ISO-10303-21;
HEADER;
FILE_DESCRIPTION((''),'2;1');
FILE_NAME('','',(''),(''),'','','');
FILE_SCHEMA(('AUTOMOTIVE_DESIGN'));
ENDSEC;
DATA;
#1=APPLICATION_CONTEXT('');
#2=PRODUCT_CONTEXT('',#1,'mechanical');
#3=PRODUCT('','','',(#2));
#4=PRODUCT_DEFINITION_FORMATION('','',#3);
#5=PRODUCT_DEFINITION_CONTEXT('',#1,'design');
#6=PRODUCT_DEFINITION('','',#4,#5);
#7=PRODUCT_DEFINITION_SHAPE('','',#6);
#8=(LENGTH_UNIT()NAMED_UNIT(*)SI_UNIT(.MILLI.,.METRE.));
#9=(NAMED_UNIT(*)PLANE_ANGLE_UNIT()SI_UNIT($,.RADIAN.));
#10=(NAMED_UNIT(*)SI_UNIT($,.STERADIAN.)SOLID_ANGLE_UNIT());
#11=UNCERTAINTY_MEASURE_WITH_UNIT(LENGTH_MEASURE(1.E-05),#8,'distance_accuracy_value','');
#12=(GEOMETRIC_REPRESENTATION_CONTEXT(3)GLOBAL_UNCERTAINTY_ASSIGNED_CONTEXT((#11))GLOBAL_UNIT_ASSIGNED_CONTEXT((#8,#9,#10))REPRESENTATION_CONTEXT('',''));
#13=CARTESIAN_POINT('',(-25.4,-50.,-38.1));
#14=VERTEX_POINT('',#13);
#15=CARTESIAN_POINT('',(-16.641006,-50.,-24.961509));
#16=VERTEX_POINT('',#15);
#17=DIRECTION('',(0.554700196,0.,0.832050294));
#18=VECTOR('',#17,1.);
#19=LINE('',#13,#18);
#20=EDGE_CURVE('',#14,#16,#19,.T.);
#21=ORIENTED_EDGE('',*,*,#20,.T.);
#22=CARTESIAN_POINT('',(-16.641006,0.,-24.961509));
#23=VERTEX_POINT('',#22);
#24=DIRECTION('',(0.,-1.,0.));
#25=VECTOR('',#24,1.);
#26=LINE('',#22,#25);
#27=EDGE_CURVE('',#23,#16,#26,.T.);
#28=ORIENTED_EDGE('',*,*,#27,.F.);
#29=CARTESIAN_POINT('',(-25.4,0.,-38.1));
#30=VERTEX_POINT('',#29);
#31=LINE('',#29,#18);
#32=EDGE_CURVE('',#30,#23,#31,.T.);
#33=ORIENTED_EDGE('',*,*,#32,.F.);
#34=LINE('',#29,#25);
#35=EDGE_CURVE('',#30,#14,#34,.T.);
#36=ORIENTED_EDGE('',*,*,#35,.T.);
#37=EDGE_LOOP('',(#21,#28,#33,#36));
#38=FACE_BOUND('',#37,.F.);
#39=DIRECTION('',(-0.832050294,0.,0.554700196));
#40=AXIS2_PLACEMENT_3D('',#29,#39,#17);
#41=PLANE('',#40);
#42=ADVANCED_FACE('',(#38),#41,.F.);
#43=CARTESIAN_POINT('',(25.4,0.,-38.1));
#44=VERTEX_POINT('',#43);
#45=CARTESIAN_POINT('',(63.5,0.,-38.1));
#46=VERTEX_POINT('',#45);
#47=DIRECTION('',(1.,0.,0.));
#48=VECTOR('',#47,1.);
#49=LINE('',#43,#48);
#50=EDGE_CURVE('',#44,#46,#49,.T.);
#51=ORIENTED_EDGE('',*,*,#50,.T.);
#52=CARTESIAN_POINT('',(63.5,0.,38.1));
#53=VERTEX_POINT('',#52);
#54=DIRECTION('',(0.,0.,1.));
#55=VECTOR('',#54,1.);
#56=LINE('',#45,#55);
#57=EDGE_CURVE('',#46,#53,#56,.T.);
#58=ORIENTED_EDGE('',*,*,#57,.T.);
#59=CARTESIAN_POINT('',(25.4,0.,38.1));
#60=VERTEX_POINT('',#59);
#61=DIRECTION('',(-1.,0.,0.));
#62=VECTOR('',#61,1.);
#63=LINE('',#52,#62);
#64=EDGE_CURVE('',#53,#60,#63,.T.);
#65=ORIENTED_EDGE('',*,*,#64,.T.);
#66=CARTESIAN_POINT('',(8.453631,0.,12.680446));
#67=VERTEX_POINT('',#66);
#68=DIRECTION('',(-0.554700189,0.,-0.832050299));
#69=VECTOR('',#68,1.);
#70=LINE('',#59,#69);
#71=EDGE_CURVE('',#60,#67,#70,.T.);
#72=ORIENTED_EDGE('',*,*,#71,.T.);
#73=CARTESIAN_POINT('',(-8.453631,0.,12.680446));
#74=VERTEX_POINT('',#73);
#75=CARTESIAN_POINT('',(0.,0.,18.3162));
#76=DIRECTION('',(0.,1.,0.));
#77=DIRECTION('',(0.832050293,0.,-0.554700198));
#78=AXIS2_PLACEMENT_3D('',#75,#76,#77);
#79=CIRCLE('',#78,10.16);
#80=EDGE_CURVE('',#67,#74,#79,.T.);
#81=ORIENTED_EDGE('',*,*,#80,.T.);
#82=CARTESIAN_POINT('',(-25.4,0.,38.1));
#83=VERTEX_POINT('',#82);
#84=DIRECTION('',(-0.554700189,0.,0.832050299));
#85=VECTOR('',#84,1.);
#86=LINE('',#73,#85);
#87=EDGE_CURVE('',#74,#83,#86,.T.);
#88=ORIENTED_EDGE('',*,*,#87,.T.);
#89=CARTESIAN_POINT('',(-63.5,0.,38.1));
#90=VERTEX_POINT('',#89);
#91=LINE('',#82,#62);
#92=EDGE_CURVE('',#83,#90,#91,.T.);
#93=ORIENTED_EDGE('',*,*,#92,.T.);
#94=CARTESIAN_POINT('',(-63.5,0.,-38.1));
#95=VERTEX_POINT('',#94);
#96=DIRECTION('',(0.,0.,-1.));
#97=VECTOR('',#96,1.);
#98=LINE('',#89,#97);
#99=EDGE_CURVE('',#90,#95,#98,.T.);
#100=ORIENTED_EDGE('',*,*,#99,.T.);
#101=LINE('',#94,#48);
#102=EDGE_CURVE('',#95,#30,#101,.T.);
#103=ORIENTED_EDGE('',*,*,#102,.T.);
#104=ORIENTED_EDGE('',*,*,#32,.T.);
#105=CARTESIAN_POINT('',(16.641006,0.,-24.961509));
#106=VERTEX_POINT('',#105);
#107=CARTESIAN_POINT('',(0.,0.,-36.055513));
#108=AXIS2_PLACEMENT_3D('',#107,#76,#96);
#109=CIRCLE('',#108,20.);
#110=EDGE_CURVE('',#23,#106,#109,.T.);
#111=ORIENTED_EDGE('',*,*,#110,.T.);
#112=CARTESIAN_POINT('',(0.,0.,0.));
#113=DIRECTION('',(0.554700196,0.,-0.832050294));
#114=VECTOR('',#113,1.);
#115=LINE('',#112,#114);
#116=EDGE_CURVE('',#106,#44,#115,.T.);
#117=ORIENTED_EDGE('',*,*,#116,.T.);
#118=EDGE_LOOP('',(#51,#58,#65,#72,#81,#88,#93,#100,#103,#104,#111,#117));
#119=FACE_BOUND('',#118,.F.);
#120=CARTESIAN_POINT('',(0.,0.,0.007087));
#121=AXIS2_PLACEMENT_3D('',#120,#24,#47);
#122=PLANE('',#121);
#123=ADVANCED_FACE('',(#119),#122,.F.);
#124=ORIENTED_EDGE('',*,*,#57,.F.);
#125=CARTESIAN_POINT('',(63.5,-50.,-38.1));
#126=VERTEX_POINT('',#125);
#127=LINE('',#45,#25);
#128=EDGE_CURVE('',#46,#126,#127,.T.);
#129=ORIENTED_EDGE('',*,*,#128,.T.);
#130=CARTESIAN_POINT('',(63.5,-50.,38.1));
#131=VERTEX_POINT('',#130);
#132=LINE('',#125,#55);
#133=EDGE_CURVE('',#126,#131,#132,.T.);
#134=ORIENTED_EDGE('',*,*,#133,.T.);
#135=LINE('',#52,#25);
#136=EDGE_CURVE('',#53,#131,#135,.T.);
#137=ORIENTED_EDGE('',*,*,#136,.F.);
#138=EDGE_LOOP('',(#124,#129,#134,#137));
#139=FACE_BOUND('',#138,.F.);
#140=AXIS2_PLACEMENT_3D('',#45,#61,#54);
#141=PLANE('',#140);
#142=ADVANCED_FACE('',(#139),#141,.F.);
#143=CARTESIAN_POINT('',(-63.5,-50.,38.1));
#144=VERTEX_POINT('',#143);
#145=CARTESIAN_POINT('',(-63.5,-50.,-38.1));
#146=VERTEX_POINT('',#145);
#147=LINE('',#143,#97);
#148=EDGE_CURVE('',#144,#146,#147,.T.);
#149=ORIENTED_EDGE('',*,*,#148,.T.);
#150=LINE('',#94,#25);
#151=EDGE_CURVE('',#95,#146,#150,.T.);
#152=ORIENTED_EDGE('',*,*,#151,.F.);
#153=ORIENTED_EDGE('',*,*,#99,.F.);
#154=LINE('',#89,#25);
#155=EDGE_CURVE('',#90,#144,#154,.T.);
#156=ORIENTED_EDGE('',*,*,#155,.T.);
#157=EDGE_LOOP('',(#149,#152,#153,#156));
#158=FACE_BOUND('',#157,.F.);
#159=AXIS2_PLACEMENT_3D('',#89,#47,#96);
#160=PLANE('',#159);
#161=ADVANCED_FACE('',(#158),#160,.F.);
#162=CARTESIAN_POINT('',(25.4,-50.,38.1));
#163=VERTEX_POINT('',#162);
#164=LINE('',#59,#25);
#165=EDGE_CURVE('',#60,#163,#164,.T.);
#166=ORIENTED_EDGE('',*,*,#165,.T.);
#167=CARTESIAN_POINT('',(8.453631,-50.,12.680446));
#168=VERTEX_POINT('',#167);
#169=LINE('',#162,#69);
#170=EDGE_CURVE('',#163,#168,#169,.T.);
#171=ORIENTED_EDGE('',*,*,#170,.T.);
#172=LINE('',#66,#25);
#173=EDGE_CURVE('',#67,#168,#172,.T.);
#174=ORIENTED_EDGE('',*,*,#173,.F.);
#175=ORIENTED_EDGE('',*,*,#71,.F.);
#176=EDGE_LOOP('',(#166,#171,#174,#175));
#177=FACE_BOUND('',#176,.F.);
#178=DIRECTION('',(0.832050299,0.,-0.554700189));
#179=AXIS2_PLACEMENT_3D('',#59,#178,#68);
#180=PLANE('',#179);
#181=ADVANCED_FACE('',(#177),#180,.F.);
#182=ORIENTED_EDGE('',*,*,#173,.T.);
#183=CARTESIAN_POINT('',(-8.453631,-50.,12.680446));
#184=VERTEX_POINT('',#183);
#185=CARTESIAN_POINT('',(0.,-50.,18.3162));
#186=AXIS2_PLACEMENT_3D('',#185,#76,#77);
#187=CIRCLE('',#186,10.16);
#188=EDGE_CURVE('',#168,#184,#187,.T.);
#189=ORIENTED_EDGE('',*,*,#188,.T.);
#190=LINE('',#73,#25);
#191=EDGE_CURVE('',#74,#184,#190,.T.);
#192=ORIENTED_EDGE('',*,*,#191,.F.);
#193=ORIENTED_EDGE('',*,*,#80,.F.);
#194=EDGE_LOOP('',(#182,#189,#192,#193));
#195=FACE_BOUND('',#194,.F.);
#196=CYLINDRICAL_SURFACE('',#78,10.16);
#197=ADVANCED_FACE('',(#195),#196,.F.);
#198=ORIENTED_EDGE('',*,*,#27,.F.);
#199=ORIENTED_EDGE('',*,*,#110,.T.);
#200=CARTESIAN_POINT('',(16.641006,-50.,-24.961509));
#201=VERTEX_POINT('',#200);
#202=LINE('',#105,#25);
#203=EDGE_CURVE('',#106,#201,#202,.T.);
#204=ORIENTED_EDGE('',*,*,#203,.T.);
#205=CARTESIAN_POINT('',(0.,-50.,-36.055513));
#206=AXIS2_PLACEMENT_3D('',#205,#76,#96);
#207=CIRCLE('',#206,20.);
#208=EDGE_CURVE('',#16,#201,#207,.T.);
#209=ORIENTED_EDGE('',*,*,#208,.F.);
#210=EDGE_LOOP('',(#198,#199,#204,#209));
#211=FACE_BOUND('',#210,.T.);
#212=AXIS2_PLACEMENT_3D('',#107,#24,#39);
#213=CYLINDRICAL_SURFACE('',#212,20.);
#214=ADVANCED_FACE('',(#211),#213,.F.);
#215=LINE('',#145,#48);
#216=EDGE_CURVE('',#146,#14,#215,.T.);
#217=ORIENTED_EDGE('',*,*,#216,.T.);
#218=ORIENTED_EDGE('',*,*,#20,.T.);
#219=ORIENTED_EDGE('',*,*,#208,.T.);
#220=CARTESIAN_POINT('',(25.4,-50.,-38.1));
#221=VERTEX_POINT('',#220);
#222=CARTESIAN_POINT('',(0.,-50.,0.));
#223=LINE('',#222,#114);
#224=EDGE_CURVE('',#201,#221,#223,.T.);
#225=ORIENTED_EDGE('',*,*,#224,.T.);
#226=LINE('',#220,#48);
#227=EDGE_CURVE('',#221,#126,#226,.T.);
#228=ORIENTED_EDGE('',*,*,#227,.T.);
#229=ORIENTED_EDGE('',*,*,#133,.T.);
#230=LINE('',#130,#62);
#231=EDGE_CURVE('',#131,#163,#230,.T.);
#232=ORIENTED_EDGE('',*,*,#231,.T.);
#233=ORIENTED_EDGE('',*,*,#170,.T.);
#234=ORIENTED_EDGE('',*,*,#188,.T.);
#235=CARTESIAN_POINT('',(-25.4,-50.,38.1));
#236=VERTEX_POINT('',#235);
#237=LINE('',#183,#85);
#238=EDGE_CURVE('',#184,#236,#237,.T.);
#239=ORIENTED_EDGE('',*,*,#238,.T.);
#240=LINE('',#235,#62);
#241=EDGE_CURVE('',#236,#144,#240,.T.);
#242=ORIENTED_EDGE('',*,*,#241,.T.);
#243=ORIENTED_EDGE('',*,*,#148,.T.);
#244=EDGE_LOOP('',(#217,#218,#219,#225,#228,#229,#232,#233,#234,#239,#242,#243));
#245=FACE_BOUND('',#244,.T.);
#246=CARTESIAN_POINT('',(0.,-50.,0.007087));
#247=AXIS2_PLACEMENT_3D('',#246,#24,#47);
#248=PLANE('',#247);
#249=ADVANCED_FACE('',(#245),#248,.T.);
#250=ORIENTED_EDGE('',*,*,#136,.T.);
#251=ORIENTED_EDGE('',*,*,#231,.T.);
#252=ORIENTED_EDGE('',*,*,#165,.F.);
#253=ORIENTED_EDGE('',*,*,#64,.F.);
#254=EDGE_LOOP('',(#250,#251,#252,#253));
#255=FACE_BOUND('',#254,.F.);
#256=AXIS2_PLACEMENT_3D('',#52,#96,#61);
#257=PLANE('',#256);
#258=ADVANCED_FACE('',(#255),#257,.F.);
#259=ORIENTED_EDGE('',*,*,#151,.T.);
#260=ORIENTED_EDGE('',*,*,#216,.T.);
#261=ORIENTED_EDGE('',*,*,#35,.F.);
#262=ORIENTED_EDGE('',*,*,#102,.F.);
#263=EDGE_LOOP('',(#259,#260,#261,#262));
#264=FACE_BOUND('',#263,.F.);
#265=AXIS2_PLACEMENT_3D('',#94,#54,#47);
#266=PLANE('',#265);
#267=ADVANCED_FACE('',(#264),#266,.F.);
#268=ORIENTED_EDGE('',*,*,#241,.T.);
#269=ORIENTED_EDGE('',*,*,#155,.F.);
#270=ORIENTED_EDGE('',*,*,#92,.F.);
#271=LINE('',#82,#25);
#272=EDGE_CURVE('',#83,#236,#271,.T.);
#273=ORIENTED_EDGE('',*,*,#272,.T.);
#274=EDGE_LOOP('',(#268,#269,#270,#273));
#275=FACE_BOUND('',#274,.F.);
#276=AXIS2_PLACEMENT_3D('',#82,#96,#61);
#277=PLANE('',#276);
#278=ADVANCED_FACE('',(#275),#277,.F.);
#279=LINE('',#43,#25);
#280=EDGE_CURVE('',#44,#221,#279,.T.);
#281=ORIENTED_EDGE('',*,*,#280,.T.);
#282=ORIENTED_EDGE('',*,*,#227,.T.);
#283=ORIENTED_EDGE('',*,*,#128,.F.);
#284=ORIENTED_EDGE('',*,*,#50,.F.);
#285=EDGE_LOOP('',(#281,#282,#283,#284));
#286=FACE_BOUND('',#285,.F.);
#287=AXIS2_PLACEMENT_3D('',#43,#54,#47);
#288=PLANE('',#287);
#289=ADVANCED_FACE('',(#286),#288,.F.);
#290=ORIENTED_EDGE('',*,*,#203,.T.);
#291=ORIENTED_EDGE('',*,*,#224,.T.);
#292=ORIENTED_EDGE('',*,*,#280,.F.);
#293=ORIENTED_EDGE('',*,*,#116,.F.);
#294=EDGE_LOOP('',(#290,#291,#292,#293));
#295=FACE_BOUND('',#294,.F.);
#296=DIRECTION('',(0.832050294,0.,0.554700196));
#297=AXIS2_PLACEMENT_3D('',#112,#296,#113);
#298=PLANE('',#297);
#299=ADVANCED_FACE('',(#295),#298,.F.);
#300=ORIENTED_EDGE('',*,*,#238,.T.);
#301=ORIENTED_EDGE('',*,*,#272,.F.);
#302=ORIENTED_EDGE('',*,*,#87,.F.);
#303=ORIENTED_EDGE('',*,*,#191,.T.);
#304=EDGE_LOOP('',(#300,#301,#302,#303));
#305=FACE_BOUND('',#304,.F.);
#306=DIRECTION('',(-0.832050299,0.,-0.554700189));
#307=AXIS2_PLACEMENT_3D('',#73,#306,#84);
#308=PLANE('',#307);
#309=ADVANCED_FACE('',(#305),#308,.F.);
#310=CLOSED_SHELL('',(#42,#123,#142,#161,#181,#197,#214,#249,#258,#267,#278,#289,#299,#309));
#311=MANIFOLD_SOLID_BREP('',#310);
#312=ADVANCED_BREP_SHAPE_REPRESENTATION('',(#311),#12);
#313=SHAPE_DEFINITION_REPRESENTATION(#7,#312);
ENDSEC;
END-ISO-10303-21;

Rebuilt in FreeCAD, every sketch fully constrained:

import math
import FreeCAD as App
import Part
import Sketcher
Q = App.Units.Quantity


def edges_at(feature, points):
    """Names of the edges that pass closest to the given points."""
    edges = feature.Shape.Edges
    near = lambda p: min(range(len(edges)), key=lambda i: edges[i].distToShape(Part.Vertex(*p))[0])
    return sorted({f"Edge{near(p) + 1}" for p in points})

doc = App.newDocument("Part")
body = doc.addObject("PartDesign::Body", "Body")

# Sketch on XZ plane
sketch1 = doc.addObject("Sketcher::SketchObject", "Sketch")
body.addObject(sketch1)
sketch1.AttachmentSupport = (doc.XZ_Plane, [""])
sketch1.MapMode = "FlatFace"
sketch1.addGeometry([
    Part.LineSegment(App.Vector(-64, 38, 0), App.Vector(-64, -38, 0)),  # 0
    Part.LineSegment(App.Vector(-64, -38, 0), App.Vector(-25, -38, 0)),  # 1
    Part.LineSegment(App.Vector(-25, -38, 0), App.Vector(0, 0, 0)),  # 2
    Part.LineSegment(App.Vector(0, 0, 0), App.Vector(25, -38, 0)),  # 3
    Part.LineSegment(App.Vector(25, -38, 0), App.Vector(64, -38, 0)),  # 4
    Part.LineSegment(App.Vector(64, -38, 0), App.Vector(64, 38, 0)),  # 5
    Part.LineSegment(App.Vector(64, 38, 0), App.Vector(25, 38, 0)),  # 6
    Part.LineSegment(App.Vector(25, 38, 0), App.Vector(8, 13, 0)),  # 7
    Part.ArcOfCircle(Part.Circle(App.Vector(0, 18, 0), App.Vector(0, 0, 1), 10), math.radians(-146), math.radians(-34)),  # 8
    Part.LineSegment(App.Vector(-8, 13, 0), App.Vector(-25, 38, 0)),  # 9
    Part.LineSegment(App.Vector(-25, 38, 0), App.Vector(-64, 38, 0)),  # 10
], False)
sketch1.addConstraint([
    Sketcher.Constraint("Coincident", 0, 2, 1, 1),
    Sketcher.Constraint("Coincident", 1, 2, 2, 1),
    Sketcher.Constraint("Coincident", 2, 2, 3, 1),
    Sketcher.Constraint("Coincident", 3, 2, 4, 1),
    Sketcher.Constraint("Coincident", 4, 2, 5, 1),
    Sketcher.Constraint("Coincident", 5, 2, 6, 1),
    Sketcher.Constraint("Coincident", 6, 2, 7, 1),
    Sketcher.Constraint("Tangent", 7, 2, 8, 2),
    Sketcher.Constraint("Tangent", 8, 1, 9, 1),
    Sketcher.Constraint("Coincident", 9, 2, 10, 1),
    Sketcher.Constraint("Coincident", 10, 2, 0, 1),
    Sketcher.Constraint("Vertical", 0),
    Sketcher.Constraint("Horizontal", 1),
    Sketcher.Constraint("Horizontal", 4),
    Sketcher.Constraint("Vertical", 5),
    Sketcher.Constraint("Horizontal", 6),
    Sketcher.Constraint("Horizontal", 10),
    Sketcher.Constraint("Coincident", 2, 2, -1, 1),
    Sketcher.Constraint("Symmetric", 0, 2, 5, 2, -1, 1),
    Sketcher.Constraint("Symmetric", 3, 2, 9, 2, -1, 1),
    Sketcher.Constraint("Symmetric", 1, 2, 3, 2, -2),
    Sketcher.Constraint("Symmetric", 7, 2, 8, 1, -2),
    Sketcher.Constraint("Parallel", 2, 7),
    Sketcher.Constraint("Radius", 8, Q("0.4 in")),
    Sketcher.Constraint("DistanceY", 0, 2, 0, 1, Q("3 in")),
    Sketcher.Constraint("DistanceX", 1, 1, 1, 2, Q("1.5 in")),
    Sketcher.Constraint("DistanceX", 1, 2, -1, 1, Q("1 in")),
])
pad1 = doc.addObject("PartDesign::Pad", "Pad")
body.addObject(pad1)
pad1.Profile = sketch1
pad1.Length = 50
doc.recompute()

fillet = doc.addObject("PartDesign::Fillet", "Fillet")
body.addObject(fillet)
fillet.Base = (pad1, edges_at(pad1, [(0, -25, 0)]))
fillet.Radius = 20

doc.recompute()
